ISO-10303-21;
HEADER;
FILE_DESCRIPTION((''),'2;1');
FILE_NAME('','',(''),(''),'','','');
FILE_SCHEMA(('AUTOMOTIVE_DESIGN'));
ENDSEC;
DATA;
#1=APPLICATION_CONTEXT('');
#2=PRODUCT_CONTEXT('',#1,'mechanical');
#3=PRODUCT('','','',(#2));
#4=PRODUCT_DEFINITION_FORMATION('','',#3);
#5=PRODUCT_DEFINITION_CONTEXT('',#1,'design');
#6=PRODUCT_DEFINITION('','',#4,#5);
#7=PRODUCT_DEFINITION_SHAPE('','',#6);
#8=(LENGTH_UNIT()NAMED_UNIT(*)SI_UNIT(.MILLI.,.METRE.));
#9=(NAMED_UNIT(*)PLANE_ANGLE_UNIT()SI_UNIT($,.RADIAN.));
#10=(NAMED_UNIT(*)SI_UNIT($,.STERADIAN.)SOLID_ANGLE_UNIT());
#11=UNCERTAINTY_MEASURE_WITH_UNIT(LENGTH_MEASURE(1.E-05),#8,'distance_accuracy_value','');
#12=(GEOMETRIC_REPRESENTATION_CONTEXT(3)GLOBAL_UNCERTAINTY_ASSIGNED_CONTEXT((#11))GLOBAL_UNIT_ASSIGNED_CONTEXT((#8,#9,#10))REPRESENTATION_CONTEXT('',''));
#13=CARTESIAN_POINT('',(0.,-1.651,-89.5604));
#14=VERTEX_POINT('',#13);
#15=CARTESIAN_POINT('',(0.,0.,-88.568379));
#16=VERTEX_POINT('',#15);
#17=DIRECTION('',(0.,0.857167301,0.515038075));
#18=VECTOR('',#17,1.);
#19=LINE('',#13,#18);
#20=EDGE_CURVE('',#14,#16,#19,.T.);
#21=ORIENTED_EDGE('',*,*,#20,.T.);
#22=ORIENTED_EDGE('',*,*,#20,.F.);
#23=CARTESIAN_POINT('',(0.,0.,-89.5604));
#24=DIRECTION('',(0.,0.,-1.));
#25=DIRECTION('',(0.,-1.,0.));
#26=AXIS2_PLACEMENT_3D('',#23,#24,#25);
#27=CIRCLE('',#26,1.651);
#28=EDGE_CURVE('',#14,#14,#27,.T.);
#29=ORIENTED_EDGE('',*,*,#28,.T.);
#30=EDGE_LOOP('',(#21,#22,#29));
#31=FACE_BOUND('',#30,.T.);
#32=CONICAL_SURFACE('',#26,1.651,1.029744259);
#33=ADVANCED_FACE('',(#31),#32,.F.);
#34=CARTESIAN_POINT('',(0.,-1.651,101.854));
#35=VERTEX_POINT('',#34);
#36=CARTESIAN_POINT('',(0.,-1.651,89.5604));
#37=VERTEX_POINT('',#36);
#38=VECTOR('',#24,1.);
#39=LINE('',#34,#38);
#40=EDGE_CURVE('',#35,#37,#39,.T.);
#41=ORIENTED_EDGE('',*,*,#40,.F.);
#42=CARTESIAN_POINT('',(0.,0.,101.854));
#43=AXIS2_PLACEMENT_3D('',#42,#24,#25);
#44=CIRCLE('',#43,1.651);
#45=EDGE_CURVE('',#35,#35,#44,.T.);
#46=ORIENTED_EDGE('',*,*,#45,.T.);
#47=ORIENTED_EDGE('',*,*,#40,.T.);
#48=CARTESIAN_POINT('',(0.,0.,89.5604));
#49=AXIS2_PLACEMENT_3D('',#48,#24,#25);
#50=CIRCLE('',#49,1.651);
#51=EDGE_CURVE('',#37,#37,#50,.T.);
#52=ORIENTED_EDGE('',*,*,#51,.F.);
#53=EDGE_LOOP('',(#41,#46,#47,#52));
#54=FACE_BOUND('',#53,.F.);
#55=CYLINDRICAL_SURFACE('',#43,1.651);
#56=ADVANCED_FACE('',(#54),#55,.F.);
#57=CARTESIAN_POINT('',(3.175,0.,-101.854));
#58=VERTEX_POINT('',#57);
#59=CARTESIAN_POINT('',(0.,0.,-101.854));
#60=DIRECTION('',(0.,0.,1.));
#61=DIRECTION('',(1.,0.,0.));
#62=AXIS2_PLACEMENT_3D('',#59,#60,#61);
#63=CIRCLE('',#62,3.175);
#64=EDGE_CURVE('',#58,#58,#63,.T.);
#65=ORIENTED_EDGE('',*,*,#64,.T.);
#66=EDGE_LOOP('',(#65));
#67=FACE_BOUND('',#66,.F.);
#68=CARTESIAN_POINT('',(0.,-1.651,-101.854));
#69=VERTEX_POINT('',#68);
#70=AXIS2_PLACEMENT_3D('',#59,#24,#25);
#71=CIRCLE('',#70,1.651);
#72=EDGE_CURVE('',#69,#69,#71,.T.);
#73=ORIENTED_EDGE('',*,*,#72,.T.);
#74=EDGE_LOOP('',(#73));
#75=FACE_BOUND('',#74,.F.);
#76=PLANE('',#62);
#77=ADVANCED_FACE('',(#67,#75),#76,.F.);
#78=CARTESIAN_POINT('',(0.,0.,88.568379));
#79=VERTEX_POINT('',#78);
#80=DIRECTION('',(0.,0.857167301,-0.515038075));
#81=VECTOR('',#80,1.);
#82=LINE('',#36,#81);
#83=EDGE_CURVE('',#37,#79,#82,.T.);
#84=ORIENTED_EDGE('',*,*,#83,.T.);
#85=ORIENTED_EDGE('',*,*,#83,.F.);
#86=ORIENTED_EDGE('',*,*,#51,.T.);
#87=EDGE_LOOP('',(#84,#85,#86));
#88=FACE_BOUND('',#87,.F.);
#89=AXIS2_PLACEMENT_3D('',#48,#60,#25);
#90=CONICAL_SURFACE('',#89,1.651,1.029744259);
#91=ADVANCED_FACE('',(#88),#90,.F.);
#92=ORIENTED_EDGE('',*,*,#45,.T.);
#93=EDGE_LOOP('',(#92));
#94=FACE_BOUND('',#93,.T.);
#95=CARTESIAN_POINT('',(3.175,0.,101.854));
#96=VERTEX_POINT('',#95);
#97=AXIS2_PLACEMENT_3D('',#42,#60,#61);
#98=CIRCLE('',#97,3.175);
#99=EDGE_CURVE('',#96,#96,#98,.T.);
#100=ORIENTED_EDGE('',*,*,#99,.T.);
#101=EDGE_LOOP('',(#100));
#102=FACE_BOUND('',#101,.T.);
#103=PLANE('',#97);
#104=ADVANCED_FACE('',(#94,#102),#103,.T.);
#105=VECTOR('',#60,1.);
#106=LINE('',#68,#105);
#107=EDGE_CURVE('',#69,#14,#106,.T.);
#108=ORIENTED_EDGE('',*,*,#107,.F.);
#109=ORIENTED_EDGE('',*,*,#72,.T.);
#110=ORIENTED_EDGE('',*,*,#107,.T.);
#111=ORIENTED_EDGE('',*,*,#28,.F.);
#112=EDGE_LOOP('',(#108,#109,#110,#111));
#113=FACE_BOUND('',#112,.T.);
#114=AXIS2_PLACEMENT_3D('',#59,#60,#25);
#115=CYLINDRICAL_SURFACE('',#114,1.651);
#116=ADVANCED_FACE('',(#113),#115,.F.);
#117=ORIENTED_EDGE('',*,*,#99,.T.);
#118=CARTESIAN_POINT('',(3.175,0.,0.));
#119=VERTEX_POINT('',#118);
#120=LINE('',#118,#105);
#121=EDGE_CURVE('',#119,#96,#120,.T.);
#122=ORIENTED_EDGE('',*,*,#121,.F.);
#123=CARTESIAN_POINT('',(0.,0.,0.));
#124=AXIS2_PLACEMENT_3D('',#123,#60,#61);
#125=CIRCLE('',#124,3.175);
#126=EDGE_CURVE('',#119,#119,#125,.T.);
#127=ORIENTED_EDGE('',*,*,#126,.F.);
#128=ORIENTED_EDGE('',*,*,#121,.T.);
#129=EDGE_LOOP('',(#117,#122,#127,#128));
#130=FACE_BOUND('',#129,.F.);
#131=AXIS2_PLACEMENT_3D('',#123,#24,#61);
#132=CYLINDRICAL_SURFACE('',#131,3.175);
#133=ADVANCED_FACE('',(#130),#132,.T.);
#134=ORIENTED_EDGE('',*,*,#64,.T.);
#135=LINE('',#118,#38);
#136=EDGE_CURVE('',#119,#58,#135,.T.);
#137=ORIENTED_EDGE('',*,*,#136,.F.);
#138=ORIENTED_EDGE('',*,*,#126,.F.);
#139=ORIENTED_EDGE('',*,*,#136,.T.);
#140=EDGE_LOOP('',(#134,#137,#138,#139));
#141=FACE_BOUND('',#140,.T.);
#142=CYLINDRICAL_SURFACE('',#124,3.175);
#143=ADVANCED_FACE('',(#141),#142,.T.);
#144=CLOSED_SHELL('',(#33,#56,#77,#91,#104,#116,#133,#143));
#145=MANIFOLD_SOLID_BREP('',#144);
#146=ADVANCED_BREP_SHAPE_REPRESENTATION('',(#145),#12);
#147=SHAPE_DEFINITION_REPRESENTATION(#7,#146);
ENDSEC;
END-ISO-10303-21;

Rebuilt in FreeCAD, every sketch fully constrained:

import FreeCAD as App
import Part
import Sketcher
from FreeCAD import Vector
Q = App.Units.Quantity

doc = App.newDocument("Part")
body = doc.addObject("PartDesign::Body", "Body")

sketch1 = body.newObject("Sketcher::SketchObject", "Sketch")
sketch1.AttachmentSupport = (doc.getObject("XY_Plane"), [""])
sketch1.MapMode = "FlatFace"
sketch1.addGeometry(Part.Circle(Vector(0, 0, 0), Vector(0, 0, 1), 3.2), False)
sketch1.addConstraint(Sketcher.Constraint("Coincident", 0, 3, -1, 1))
sketch1.addConstraint(Sketcher.Constraint("Diameter", 0, Q("0.25 in")))
pad1 = body.newObject("PartDesign::Pad", "Pad")
pad1.Profile = sketch1
pad1.Length = Q("8.02 in")
pad1.Midplane = True

sketch2 = body.newObject("Sketcher::SketchObject", "Sketch001")
sketch2.AttachmentSupport = (doc.getObject("XY_Plane"), [""])
sketch2.MapMode = "FlatFace"
sketch2.AttachmentOffset = App.Placement(Vector(0, 0, 4.01 * 25.4), App.Rotation())
sketch2.addGeometry(Part.Circle(Vector(0, 0, 0), Vector(0, 0, 1), 1.7), False)
sketch2.addConstraint(Sketcher.Constraint("Coincident", 0, 3, -1, 1))
sketch2.addConstraint(Sketcher.Constraint("Diameter", 0, Q("0.13 in")))
doc.recompute()
hole = body.newObject("PartDesign::Hole", "Hole")
hole.Profile = sketch2
hole.ThreadType = "None"
hole.Diameter = Q("0.13 in")
hole.DepthType = "Dimension"
hole.Depth = Q("0.484 in")
hole.DrillPoint = "Angled"
hole.DrillPointAngle = 118
doc.recompute()

mirrored = body.newObject("PartDesign::Mirrored", "Mirrored")
mirrored.Originals = [hole]
mirrored.MirrorPlane = (doc.getObject("XY_Plane"), [""])
body.Tip = mirrored

doc.recompute()
